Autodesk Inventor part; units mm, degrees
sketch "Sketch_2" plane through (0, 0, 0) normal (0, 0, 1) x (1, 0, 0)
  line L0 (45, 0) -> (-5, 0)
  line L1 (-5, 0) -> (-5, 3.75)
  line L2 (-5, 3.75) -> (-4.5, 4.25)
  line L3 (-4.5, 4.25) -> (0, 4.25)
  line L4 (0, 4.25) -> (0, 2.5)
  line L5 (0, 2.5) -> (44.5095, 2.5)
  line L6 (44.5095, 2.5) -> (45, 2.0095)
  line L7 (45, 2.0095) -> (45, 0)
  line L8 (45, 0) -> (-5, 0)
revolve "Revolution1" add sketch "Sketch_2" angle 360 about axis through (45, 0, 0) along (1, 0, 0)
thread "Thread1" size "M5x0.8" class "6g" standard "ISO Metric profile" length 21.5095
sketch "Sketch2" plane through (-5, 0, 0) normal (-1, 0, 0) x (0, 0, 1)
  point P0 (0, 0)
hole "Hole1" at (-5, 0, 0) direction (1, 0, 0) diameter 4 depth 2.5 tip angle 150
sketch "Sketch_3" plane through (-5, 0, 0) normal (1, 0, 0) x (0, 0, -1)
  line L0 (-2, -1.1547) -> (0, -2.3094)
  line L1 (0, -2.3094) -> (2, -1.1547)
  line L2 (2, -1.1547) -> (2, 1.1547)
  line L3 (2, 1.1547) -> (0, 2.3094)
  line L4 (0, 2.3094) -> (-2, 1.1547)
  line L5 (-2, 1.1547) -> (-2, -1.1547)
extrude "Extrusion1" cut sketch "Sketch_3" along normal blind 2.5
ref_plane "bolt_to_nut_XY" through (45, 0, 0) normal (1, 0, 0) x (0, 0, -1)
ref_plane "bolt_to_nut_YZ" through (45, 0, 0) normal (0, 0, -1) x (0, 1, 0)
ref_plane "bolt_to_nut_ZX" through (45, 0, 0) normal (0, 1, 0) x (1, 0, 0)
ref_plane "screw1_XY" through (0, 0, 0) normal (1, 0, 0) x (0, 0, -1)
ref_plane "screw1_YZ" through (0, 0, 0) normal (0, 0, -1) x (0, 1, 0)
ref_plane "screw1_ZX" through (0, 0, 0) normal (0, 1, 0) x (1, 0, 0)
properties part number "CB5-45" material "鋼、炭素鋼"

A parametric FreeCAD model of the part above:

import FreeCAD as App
import Part
import Sketcher

V = App.Vector
Q = App.Units.Quantity

doc = App.newDocument("Part")
body = doc.addObject("PartDesign::Body", "Body")

sketch1 = doc.addObject("Sketcher::SketchObject", "Sketch")
body.addObject(sketch1)
sketch1.AttachmentSupport = (doc.XY_Plane, [""])
sketch1.MapMode = "FlatFace"
sketch1.addGeometry(Part.LineSegment(V(-5, 0, 0), V(45, 0, 0)), False)
sketch1.addGeometry(Part.LineSegment(V(45, 0, 0), V(45, 2.0095, 0)), False)
sketch1.addGeometry(Part.LineSegment(V(45, 2.0095, 0), V(44.5095, 2.5, 0)), False)
sketch1.addGeometry(Part.LineSegment(V(44.5095, 2.5, 0), V(0, 2.5, 0)), False)
sketch1.addGeometry(Part.LineSegment(V(0, 2.5, 0), V(0, 4.25, 0)), False)
sketch1.addGeometry(Part.LineSegment(V(0, 4.25, 0), V(-4.5, 4.25, 0)), False)
sketch1.addGeometry(Part.LineSegment(V(-4.5, 4.25, 0), V(-5, 3.75, 0)), False)
sketch1.addGeometry(Part.LineSegment(V(-5, 3.75, 0), V(-5, 0, 0)), False)
sketch1.addConstraint(Sketcher.Constraint("Coincident", 0, 2, 1, 1))
sketch1.addConstraint(Sketcher.Constraint("Coincident", 1, 2, 2, 1))
sketch1.addConstraint(Sketcher.Constraint("Coincident", 2, 2, 3, 1))
sketch1.addConstraint(Sketcher.Constraint("Coincident", 3, 2, 4, 1))
sketch1.addConstraint(Sketcher.Constraint("Coincident", 4, 2, 5, 1))
sketch1.addConstraint(Sketcher.Constraint("Coincident", 5, 2, 6, 1))
sketch1.addConstraint(Sketcher.Constraint("Coincident", 6, 2, 7, 1))
sketch1.addConstraint(Sketcher.Constraint("Coincident", 7, 2, 0, 1))
sketch1.addConstraint(Sketcher.Constraint("Horizontal", 0))
sketch1.addConstraint(Sketcher.Constraint("Vertical", 1))
sketch1.addConstraint(Sketcher.Constraint("Horizontal", 3))
sketch1.addConstraint(Sketcher.Constraint("Vertical", 4))
sketch1.addConstraint(Sketcher.Constraint("Horizontal", 5))
sketch1.addConstraint(Sketcher.Constraint("Vertical", 7))
sketch1.addConstraint(Sketcher.Constraint("PointOnObject", 0, 2, -1))
sketch1.addConstraint(Sketcher.Constraint("PointOnObject", 3, 2, -2))
sketch1.addConstraint(Sketcher.Constraint("Perpendicular", 2, 6))
sketch1.addConstraint(Sketcher.Constraint("DistanceX", 0, 1, 0, 2, Q("50 mm")))
sketch1.addConstraint(Sketcher.Constraint("Angle", 2, Q("135 deg")))
sketch1.addConstraint(Sketcher.Constraint("DistanceX", 5, 2, 5, 1, Q("4.5 mm")))
sketch1.addConstraint(Sketcher.Constraint("DistanceX", -1, 1, 0, 2, Q("45 mm")))
sketch1.addConstraint(Sketcher.Constraint("DistanceY", 4, 1, 4, 2, Q("1.75 mm")))
sketch1.addConstraint(Sketcher.Constraint("DistanceY", 7, 2, 7, 1, Q("3.75 mm")))
sketch1.addConstraint(Sketcher.Constraint("DistanceX", 3, 2, 3, 1, Q("44.5095 mm")))
revolution = doc.addObject("PartDesign::Revolution", "Revolution")
body.addObject(revolution)
revolution.Profile = sketch1
revolution.ReferenceAxis = (sketch1, ["H_Axis"])
revolution.Angle = 360

sketch2 = doc.addObject("Sketcher::SketchObject", "Sketch001")
body.addObject(sketch2)
sketch2.AttachmentSupport = (doc.YZ_Plane, [""])
sketch2.MapMode = "FlatFace"
sketch2.AttachmentOffset = App.Placement(V(0, 0, -5), App.Rotation())
sketch2.addGeometry(Part.Circle(V(0, 0, 0), V(0, 0, 1), 2), False)
sketch2.addConstraint(Sketcher.Constraint("Coincident", 0, 3, -1, 1))
sketch2.addConstraint(Sketcher.Constraint("Diameter", 0, Q("4 mm")))
doc.recompute()
hole = doc.addObject("PartDesign::Hole", "Hole")
body.addObject(hole)
hole.Profile = sketch2
hole.ThreadType = "None"
hole.Diameter = 4
hole.DepthType = "Dimension"
hole.Depth = 2.5
hole.DrillPoint = "Angled"
hole.DrillPointAngle = 150
hole.Reversed = True

sketch3 = doc.addObject("Sketcher::SketchObject", "Sketch002")
body.addObject(sketch3)
sketch3.AttachmentSupport = (doc.YZ_Plane, [""])
sketch3.MapMode = "FlatFace"
sketch3.AttachmentOffset = App.Placement(V(0, 0, -5), App.Rotation())
sketch3.addGeometry(Part.LineSegment(V(1.1547, 2, 0), V(-1.1547, 2, 0)), False)
sketch3.addGeometry(Part.LineSegment(V(-1.1547, 2, 0), V(-2.3094, 0, 0)), False)
sketch3.addGeometry(Part.LineSegment(V(-2.3094, 0, 0), V(-1.1547, -2, 0)), False)
sketch3.addGeometry(Part.LineSegment(V(-1.1547, -2, 0), V(1.1547, -2, 0)), False)
sketch3.addGeometry(Part.LineSegment(V(1.1547, -2, 0), V(2.3094, 0, 0)), False)
sketch3.addGeometry(Part.LineSegment(V(2.3094, 0, 0), V(1.1547, 2, 0)), False)
sketch3.addConstraint(Sketcher.Constraint("Coincident", 0, 2, 1, 1))
sketch3.addConstraint(Sketcher.Constraint("Coincident", 1, 2, 2, 1))
sketch3.addConstraint(Sketcher.Constraint("Coincident", 2, 2, 3, 1))
sketch3.addConstraint(Sketcher.Constraint("Coincident", 3, 2, 4, 1))
sketch3.addConstraint(Sketcher.Constraint("Coincident", 4, 2, 5, 1))
sketch3.addConstraint(Sketcher.Constraint("Coincident", 5, 2, 0, 1))
sketch3.addConstraint(Sketcher.Constraint("Horizontal", 0))
sketch3.addConstraint(Sketcher.Constraint("Horizontal", 3))
sketch3.addConstraint(Sketcher.Constraint("Symmetric", 0, 2, 3, 2, -1, 1))
sketch3.addConstraint(Sketcher.Constraint("Symmetric", 1, 2, 4, 2, -1, 1))
sketch3.addConstraint(Sketcher.Constraint("PointOnObject", 1, 2, -1))
sketch3.addConstraint(Sketcher.Constraint("Parallel", 2, 5))
sketch3.addConstraint(Sketcher.Constraint("Vertical", 0, 2, 2, 2))
sketch3.addConstraint(Sketcher.Constraint("Angle", 1, Q("-120 deg")))
sketch3.addConstraint(Sketcher.Constraint("DistanceY", -1, 1, 0, 2, Q("2 mm")))
sketch3.addConstraint(Sketcher.Constraint("DistanceX", 0, 2, 0, 1, Q("2.3094 mm")))
pocket1 = doc.addObject("PartDesign::Pocket", "Pocket")
body.addObject(pocket1)
pocket1.Profile = sketch3
pocket1.Length = 2.5
pocket1.Reversed = True

doc.recompute()
